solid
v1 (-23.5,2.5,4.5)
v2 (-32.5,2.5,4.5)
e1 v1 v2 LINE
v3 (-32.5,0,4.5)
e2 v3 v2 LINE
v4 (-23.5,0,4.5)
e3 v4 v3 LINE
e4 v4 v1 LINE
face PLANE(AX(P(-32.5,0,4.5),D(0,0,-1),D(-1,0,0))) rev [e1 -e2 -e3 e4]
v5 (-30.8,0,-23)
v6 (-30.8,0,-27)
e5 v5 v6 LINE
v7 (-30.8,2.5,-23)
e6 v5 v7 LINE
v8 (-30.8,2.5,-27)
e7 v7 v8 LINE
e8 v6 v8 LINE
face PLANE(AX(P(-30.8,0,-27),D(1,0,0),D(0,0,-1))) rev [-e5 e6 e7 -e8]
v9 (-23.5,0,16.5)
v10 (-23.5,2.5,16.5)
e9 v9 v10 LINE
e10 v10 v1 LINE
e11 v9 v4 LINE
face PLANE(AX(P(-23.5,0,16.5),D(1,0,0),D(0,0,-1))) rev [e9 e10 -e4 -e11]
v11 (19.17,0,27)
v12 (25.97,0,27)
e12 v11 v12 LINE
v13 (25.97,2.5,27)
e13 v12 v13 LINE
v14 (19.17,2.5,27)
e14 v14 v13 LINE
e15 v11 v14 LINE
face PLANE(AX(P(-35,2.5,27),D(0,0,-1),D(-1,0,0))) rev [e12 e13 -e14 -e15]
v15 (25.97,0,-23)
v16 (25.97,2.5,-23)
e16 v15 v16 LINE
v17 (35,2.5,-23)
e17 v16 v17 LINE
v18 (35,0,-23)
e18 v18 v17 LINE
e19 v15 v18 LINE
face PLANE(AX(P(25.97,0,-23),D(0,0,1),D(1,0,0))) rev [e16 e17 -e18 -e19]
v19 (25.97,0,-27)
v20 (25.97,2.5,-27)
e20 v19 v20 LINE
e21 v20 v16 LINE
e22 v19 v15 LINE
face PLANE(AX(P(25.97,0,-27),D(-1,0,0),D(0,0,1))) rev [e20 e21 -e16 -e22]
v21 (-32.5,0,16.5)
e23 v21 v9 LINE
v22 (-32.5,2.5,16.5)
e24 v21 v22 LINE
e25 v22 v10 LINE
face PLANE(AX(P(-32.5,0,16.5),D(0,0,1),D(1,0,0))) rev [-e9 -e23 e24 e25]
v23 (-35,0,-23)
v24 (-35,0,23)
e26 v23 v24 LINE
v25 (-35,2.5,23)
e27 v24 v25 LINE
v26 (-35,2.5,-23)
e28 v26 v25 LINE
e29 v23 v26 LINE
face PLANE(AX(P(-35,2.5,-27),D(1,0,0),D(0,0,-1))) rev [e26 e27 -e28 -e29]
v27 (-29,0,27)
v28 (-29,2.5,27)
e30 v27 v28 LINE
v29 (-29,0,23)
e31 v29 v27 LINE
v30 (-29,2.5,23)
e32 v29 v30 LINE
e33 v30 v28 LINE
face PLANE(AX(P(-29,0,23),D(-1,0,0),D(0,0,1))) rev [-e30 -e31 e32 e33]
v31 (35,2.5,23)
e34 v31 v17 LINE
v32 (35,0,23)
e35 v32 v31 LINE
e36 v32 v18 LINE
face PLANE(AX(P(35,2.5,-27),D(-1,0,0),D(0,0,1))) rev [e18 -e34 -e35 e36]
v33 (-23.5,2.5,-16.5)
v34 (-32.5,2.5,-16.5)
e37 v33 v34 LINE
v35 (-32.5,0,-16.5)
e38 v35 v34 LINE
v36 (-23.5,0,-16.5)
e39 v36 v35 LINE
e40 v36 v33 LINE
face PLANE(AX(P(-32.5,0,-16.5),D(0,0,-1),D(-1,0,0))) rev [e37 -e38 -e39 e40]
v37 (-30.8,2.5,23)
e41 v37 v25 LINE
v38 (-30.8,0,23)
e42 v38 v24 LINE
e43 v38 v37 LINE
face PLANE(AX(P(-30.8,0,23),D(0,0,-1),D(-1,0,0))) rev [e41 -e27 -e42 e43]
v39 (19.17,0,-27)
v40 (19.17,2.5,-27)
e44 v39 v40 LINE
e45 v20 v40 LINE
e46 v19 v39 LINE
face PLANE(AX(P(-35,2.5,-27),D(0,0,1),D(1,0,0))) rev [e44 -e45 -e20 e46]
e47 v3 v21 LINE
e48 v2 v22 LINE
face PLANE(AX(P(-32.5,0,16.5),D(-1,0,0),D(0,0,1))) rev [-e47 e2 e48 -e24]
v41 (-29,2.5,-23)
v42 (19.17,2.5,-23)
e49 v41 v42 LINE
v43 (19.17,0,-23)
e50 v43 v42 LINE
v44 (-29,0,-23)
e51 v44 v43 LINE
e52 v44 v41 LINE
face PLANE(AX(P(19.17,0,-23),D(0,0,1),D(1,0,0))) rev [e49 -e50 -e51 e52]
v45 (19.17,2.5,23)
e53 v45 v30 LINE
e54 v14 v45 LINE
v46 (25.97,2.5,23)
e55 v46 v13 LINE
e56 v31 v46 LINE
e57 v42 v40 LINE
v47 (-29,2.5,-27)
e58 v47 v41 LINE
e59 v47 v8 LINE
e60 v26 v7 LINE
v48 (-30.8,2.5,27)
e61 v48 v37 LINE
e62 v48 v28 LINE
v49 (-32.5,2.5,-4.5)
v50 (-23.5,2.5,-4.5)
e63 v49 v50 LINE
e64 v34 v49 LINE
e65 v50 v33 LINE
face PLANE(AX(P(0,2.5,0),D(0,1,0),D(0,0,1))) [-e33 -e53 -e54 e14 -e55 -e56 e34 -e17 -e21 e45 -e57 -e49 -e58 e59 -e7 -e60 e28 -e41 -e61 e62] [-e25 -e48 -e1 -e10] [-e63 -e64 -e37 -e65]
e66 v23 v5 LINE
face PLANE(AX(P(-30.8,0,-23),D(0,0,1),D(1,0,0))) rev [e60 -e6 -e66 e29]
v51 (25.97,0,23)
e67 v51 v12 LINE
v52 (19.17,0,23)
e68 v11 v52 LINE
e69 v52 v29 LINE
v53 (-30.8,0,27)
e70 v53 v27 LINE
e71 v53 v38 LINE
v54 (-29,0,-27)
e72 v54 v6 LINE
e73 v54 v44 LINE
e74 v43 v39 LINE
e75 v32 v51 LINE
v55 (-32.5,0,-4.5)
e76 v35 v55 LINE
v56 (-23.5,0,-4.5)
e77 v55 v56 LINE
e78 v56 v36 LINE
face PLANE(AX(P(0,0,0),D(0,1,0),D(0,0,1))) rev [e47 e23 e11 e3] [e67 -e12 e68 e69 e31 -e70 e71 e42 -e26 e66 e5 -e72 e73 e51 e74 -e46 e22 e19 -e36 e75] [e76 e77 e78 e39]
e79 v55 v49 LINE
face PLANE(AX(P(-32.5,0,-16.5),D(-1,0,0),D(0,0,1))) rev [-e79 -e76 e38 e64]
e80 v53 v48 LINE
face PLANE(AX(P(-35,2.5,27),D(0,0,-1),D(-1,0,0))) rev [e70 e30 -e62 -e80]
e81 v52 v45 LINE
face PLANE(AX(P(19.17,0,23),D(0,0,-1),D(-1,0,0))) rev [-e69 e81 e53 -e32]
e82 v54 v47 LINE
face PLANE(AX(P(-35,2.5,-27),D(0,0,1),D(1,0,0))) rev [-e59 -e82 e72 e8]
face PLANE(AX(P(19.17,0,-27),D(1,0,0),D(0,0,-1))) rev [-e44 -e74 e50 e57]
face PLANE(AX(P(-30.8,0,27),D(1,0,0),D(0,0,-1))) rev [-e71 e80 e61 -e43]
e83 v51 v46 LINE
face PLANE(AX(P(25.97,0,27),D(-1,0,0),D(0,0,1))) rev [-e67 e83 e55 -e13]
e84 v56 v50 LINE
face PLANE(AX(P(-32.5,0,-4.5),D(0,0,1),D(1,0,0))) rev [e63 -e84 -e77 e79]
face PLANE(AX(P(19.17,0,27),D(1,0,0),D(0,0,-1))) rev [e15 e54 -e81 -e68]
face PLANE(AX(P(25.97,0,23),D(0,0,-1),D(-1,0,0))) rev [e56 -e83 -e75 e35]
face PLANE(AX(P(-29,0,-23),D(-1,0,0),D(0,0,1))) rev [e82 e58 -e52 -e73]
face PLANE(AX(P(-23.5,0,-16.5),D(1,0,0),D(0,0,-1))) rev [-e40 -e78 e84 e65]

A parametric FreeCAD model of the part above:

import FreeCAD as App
import Part
import Sketcher


def add_polygon(sketch, points):
    """Adds a closed chain of lines whose ends are joined by coincident constraints."""
    first, n = sketch.GeometryCount, len(points)
    for a, b in zip(points, points[1:] + points[:1]):
        sketch.addGeometry(Part.LineSegment(App.Vector(*a, 0), App.Vector(*b, 0)), False)
    for i in range(n):
        sketch.addConstraint(Sketcher.Constraint("Coincident", first + i, 2, first + (i + 1) % n, 1))

doc = App.newDocument("Part")
body = doc.addObject("PartDesign::Body", "Body")

sketch1 = doc.addObject("Sketcher::SketchObject", "Sketch")
body.addObject(sketch1)
sketch1.AttachmentSupport = (doc.XZ_Plane, [""])
sketch1.MapMode = "FlatFace"
add_polygon(sketch1, [(-35, -27), (-35, 27), (35, 27), (35, -27)])
sketch1.addConstraint(Sketcher.Constraint("Vertical", 0))
sketch1.addConstraint(Sketcher.Constraint("Horizontal", 1))
sketch1.addConstraint(Sketcher.Constraint("Vertical", 2))
sketch1.addConstraint(Sketcher.Constraint("Horizontal", 3))
sketch1.addConstraint(Sketcher.Constraint("Symmetric", 0, 2, 2, 2, -1, 1))
sketch1.addConstraint(Sketcher.Constraint("DistanceX", 1, 1, 1, 2, 70.0))
sketch1.addConstraint(Sketcher.Constraint("DistanceY", 0, 1, 0, 2, 54.0))
pad1 = doc.addObject("PartDesign::Pad", "Pad")
body.addObject(pad1)
pad1.Profile = sketch1
pad1.Length = 2.5
pad1.Reversed = True

sketch2 = doc.addObject("Sketcher::SketchObject", "Sketch001")
body.addObject(sketch2)
sketch2.AttachmentSupport = (doc.XZ_Plane, [""])
sketch2.MapMode = "FlatFace"
sketch2.AttachmentOffset = App.Placement(App.Vector(0, 0, -2.5), App.Rotation())
add_polygon(sketch2, [(26, -27), (26, -23), (35, -23), (35, -27)])
add_polygon(sketch2, [(-29, -27), (-29, -23), (19.2, -23), (19.2, -27)])
add_polygon(sketch2, [(-35, -27), (-35, -23), (-30.8, -23), (-30.8, -27)])
add_polygon(sketch2, [(-35, 23), (-35, 27), (-30.8, 27), (-30.8, 23)])
add_polygon(sketch2, [(26, 23), (26, 27), (35, 27), (35, 23)])
add_polygon(sketch2, [(-29, 23), (-29, 27), (19.2, 27), (19.2, 23)])
sketch2.addConstraint(Sketcher.Constraint("Vertical", 0))
sketch2.addConstraint(Sketcher.Constraint("Horizontal", 1))
sketch2.addConstraint(Sketcher.Constraint("Vertical", 2))
sketch2.addConstraint(Sketcher.Constraint("Horizontal", 3))
sketch2.addConstraint(Sketcher.Constraint("Vertical", 4))
sketch2.addConstraint(Sketcher.Constraint("Horizontal", 5))
sketch2.addConstraint(Sketcher.Constraint("Vertical", 6))
sketch2.addConstraint(Sketcher.Constraint("Horizontal", 7))
sketch2.addConstraint(Sketcher.Constraint("Vertical", 8))
sketch2.addConstraint(Sketcher.Constraint("Horizontal", 9))
sketch2.addConstraint(Sketcher.Constraint("Vertical", 10))
sketch2.addConstraint(Sketcher.Constraint("Horizontal", 11))
sketch2.addConstraint(Sketcher.Constraint("Vertical", 12))
sketch2.addConstraint(Sketcher.Constraint("Horizontal", 13))
sketch2.addConstraint(Sketcher.Constraint("Vertical", 14))
sketch2.addConstraint(Sketcher.Constraint("Horizontal", 15))
sketch2.addConstraint(Sketcher.Constraint("Vertical", 16))
sketch2.addConstraint(Sketcher.Constraint("Horizontal", 17))
sketch2.addConstraint(Sketcher.Constraint("Vertical", 18))
sketch2.addConstraint(Sketcher.Constraint("Horizontal", 19))
sketch2.addConstraint(Sketcher.Constraint("Vertical", 20))
sketch2.addConstraint(Sketcher.Constraint("Horizontal", 21))
sketch2.addConstraint(Sketcher.Constraint("Vertical", 22))
sketch2.addConstraint(Sketcher.Constraint("Horizontal", 23))
sketch2.addConstraint(Sketcher.Constraint("Symmetric", 2, 2, 12, 2, -1, 1))
sketch2.addConstraint(Sketcher.Constraint("Symmetric", 11, 2, 17, 2, -1, 1))
sketch2.addConstraint(Sketcher.Constraint("Symmetric", 1, 2, 8, 2, -2))
sketch2.addConstraint(Sketcher.Constraint("Symmetric", 10, 2, 13, 2, -1))
sketch2.addConstraint(Sketcher.Constraint("Symmetric", 0, 2, 19, 2, -1))
sketch2.addConstraint(Sketcher.Constraint("Symmetric", 7, 2, 20, 2, -1))
sketch2.addConstraint(Sketcher.Constraint("Symmetric", 5, 2, 22, 2, -1))
sketch2.addConstraint(Sketcher.Constraint("Horizontal", 1, 2, 4, 2))
sketch2.addConstraint(Sketcher.Constraint("Horizontal", 3, 2, 6, 2))
sketch2.addConstraint(Sketcher.Constraint("Horizontal", 15, 2, 18, 2))
sketch2.addConstraint(Sketcher.Constraint("DistanceY", 0, 1, 0, 2, 4.0))
sketch2.addConstraint(Sketcher.Constraint("DistanceX", 9, 1, 9, 2, 4.2))
sketch2.addConstraint(Sketcher.Constraint("DistanceY", 0, 2, -1, 1, 23.0))
sketch2.addConstraint(Sketcher.Constraint("DistanceX", -1, 1, 1, 2, 35.0))
sketch2.addConstraint(Sketcher.Constraint("DistanceX", 4, 2, -1, 1, 29.0))
sketch2.addConstraint(Sketcher.Constraint("DistanceX", 1, 1, 1, 2, 9.03))
sketch2.addConstraint(Sketcher.Constraint("DistanceX", 5, 1, 5, 2, 48.17))
pocket1 = doc.addObject("PartDesign::Pocket", "Pocket")
body.addObject(pocket1)
pocket1.Profile = sketch2
pocket1.Type = "ThroughAll"
pocket1.Reversed = True

sketch3 = doc.addObject("Sketcher::SketchObject", "Sketch002")
body.addObject(sketch3)
sketch3.AttachmentSupport = (doc.XZ_Plane, [""])
sketch3.MapMode = "FlatFace"
sketch3.AttachmentOffset = App.Placement(App.Vector(0, 0, -2.5), App.Rotation())
add_polygon(sketch3, [(-32, -16), (-32, -4), (-24, -4), (-24, -16)])
add_polygon(sketch3, [(-32, 4), (-32, 16), (-24, 16), (-24, 4)])
sketch3.addConstraint(Sketcher.Constraint("Vertical", 0))
sketch3.addConstraint(Sketcher.Constraint("Horizontal", 1))
sketch3.addConstraint(Sketcher.Constraint("Vertical", 2))
sketch3.addConstraint(Sketcher.Constraint("Horizontal", 3))
sketch3.addConstraint(Sketcher.Constraint("Vertical", 4))
sketch3.addConstraint(Sketcher.Constraint("Horizontal", 5))
sketch3.addConstraint(Sketcher.Constraint("Vertical", 6))
sketch3.addConstraint(Sketcher.Constraint("Horizontal", 7))
sketch3.addConstraint(Sketcher.Constraint("Symmetric", 3, 2, 4, 2, -1))
sketch3.addConstraint(Sketcher.Constraint("Symmetric", 1, 2, 6, 2, -1))
sketch3.addConstraint(Sketcher.Constraint("DistanceX", 1, 1, 1, 2, 9.0))
sketch3.addConstraint(Sketcher.Constraint("DistanceY", 0, 1, 0, 2, 12.0))
sketch3.addConstraint(Sketcher.Constraint("DistanceY", 0, 2, 4, 2, 21.0))
sketch3.addConstraint(Sketcher.Constraint("DistanceX", 0, 2, -1, 1, 32.5))
pocket2 = doc.addObject("PartDesign::Pocket", "Pocket001")
body.addObject(pocket2)
pocket2.Profile = sketch3
pocket2.Type = "ThroughAll"
pocket2.Reversed = True

doc.recompute()
